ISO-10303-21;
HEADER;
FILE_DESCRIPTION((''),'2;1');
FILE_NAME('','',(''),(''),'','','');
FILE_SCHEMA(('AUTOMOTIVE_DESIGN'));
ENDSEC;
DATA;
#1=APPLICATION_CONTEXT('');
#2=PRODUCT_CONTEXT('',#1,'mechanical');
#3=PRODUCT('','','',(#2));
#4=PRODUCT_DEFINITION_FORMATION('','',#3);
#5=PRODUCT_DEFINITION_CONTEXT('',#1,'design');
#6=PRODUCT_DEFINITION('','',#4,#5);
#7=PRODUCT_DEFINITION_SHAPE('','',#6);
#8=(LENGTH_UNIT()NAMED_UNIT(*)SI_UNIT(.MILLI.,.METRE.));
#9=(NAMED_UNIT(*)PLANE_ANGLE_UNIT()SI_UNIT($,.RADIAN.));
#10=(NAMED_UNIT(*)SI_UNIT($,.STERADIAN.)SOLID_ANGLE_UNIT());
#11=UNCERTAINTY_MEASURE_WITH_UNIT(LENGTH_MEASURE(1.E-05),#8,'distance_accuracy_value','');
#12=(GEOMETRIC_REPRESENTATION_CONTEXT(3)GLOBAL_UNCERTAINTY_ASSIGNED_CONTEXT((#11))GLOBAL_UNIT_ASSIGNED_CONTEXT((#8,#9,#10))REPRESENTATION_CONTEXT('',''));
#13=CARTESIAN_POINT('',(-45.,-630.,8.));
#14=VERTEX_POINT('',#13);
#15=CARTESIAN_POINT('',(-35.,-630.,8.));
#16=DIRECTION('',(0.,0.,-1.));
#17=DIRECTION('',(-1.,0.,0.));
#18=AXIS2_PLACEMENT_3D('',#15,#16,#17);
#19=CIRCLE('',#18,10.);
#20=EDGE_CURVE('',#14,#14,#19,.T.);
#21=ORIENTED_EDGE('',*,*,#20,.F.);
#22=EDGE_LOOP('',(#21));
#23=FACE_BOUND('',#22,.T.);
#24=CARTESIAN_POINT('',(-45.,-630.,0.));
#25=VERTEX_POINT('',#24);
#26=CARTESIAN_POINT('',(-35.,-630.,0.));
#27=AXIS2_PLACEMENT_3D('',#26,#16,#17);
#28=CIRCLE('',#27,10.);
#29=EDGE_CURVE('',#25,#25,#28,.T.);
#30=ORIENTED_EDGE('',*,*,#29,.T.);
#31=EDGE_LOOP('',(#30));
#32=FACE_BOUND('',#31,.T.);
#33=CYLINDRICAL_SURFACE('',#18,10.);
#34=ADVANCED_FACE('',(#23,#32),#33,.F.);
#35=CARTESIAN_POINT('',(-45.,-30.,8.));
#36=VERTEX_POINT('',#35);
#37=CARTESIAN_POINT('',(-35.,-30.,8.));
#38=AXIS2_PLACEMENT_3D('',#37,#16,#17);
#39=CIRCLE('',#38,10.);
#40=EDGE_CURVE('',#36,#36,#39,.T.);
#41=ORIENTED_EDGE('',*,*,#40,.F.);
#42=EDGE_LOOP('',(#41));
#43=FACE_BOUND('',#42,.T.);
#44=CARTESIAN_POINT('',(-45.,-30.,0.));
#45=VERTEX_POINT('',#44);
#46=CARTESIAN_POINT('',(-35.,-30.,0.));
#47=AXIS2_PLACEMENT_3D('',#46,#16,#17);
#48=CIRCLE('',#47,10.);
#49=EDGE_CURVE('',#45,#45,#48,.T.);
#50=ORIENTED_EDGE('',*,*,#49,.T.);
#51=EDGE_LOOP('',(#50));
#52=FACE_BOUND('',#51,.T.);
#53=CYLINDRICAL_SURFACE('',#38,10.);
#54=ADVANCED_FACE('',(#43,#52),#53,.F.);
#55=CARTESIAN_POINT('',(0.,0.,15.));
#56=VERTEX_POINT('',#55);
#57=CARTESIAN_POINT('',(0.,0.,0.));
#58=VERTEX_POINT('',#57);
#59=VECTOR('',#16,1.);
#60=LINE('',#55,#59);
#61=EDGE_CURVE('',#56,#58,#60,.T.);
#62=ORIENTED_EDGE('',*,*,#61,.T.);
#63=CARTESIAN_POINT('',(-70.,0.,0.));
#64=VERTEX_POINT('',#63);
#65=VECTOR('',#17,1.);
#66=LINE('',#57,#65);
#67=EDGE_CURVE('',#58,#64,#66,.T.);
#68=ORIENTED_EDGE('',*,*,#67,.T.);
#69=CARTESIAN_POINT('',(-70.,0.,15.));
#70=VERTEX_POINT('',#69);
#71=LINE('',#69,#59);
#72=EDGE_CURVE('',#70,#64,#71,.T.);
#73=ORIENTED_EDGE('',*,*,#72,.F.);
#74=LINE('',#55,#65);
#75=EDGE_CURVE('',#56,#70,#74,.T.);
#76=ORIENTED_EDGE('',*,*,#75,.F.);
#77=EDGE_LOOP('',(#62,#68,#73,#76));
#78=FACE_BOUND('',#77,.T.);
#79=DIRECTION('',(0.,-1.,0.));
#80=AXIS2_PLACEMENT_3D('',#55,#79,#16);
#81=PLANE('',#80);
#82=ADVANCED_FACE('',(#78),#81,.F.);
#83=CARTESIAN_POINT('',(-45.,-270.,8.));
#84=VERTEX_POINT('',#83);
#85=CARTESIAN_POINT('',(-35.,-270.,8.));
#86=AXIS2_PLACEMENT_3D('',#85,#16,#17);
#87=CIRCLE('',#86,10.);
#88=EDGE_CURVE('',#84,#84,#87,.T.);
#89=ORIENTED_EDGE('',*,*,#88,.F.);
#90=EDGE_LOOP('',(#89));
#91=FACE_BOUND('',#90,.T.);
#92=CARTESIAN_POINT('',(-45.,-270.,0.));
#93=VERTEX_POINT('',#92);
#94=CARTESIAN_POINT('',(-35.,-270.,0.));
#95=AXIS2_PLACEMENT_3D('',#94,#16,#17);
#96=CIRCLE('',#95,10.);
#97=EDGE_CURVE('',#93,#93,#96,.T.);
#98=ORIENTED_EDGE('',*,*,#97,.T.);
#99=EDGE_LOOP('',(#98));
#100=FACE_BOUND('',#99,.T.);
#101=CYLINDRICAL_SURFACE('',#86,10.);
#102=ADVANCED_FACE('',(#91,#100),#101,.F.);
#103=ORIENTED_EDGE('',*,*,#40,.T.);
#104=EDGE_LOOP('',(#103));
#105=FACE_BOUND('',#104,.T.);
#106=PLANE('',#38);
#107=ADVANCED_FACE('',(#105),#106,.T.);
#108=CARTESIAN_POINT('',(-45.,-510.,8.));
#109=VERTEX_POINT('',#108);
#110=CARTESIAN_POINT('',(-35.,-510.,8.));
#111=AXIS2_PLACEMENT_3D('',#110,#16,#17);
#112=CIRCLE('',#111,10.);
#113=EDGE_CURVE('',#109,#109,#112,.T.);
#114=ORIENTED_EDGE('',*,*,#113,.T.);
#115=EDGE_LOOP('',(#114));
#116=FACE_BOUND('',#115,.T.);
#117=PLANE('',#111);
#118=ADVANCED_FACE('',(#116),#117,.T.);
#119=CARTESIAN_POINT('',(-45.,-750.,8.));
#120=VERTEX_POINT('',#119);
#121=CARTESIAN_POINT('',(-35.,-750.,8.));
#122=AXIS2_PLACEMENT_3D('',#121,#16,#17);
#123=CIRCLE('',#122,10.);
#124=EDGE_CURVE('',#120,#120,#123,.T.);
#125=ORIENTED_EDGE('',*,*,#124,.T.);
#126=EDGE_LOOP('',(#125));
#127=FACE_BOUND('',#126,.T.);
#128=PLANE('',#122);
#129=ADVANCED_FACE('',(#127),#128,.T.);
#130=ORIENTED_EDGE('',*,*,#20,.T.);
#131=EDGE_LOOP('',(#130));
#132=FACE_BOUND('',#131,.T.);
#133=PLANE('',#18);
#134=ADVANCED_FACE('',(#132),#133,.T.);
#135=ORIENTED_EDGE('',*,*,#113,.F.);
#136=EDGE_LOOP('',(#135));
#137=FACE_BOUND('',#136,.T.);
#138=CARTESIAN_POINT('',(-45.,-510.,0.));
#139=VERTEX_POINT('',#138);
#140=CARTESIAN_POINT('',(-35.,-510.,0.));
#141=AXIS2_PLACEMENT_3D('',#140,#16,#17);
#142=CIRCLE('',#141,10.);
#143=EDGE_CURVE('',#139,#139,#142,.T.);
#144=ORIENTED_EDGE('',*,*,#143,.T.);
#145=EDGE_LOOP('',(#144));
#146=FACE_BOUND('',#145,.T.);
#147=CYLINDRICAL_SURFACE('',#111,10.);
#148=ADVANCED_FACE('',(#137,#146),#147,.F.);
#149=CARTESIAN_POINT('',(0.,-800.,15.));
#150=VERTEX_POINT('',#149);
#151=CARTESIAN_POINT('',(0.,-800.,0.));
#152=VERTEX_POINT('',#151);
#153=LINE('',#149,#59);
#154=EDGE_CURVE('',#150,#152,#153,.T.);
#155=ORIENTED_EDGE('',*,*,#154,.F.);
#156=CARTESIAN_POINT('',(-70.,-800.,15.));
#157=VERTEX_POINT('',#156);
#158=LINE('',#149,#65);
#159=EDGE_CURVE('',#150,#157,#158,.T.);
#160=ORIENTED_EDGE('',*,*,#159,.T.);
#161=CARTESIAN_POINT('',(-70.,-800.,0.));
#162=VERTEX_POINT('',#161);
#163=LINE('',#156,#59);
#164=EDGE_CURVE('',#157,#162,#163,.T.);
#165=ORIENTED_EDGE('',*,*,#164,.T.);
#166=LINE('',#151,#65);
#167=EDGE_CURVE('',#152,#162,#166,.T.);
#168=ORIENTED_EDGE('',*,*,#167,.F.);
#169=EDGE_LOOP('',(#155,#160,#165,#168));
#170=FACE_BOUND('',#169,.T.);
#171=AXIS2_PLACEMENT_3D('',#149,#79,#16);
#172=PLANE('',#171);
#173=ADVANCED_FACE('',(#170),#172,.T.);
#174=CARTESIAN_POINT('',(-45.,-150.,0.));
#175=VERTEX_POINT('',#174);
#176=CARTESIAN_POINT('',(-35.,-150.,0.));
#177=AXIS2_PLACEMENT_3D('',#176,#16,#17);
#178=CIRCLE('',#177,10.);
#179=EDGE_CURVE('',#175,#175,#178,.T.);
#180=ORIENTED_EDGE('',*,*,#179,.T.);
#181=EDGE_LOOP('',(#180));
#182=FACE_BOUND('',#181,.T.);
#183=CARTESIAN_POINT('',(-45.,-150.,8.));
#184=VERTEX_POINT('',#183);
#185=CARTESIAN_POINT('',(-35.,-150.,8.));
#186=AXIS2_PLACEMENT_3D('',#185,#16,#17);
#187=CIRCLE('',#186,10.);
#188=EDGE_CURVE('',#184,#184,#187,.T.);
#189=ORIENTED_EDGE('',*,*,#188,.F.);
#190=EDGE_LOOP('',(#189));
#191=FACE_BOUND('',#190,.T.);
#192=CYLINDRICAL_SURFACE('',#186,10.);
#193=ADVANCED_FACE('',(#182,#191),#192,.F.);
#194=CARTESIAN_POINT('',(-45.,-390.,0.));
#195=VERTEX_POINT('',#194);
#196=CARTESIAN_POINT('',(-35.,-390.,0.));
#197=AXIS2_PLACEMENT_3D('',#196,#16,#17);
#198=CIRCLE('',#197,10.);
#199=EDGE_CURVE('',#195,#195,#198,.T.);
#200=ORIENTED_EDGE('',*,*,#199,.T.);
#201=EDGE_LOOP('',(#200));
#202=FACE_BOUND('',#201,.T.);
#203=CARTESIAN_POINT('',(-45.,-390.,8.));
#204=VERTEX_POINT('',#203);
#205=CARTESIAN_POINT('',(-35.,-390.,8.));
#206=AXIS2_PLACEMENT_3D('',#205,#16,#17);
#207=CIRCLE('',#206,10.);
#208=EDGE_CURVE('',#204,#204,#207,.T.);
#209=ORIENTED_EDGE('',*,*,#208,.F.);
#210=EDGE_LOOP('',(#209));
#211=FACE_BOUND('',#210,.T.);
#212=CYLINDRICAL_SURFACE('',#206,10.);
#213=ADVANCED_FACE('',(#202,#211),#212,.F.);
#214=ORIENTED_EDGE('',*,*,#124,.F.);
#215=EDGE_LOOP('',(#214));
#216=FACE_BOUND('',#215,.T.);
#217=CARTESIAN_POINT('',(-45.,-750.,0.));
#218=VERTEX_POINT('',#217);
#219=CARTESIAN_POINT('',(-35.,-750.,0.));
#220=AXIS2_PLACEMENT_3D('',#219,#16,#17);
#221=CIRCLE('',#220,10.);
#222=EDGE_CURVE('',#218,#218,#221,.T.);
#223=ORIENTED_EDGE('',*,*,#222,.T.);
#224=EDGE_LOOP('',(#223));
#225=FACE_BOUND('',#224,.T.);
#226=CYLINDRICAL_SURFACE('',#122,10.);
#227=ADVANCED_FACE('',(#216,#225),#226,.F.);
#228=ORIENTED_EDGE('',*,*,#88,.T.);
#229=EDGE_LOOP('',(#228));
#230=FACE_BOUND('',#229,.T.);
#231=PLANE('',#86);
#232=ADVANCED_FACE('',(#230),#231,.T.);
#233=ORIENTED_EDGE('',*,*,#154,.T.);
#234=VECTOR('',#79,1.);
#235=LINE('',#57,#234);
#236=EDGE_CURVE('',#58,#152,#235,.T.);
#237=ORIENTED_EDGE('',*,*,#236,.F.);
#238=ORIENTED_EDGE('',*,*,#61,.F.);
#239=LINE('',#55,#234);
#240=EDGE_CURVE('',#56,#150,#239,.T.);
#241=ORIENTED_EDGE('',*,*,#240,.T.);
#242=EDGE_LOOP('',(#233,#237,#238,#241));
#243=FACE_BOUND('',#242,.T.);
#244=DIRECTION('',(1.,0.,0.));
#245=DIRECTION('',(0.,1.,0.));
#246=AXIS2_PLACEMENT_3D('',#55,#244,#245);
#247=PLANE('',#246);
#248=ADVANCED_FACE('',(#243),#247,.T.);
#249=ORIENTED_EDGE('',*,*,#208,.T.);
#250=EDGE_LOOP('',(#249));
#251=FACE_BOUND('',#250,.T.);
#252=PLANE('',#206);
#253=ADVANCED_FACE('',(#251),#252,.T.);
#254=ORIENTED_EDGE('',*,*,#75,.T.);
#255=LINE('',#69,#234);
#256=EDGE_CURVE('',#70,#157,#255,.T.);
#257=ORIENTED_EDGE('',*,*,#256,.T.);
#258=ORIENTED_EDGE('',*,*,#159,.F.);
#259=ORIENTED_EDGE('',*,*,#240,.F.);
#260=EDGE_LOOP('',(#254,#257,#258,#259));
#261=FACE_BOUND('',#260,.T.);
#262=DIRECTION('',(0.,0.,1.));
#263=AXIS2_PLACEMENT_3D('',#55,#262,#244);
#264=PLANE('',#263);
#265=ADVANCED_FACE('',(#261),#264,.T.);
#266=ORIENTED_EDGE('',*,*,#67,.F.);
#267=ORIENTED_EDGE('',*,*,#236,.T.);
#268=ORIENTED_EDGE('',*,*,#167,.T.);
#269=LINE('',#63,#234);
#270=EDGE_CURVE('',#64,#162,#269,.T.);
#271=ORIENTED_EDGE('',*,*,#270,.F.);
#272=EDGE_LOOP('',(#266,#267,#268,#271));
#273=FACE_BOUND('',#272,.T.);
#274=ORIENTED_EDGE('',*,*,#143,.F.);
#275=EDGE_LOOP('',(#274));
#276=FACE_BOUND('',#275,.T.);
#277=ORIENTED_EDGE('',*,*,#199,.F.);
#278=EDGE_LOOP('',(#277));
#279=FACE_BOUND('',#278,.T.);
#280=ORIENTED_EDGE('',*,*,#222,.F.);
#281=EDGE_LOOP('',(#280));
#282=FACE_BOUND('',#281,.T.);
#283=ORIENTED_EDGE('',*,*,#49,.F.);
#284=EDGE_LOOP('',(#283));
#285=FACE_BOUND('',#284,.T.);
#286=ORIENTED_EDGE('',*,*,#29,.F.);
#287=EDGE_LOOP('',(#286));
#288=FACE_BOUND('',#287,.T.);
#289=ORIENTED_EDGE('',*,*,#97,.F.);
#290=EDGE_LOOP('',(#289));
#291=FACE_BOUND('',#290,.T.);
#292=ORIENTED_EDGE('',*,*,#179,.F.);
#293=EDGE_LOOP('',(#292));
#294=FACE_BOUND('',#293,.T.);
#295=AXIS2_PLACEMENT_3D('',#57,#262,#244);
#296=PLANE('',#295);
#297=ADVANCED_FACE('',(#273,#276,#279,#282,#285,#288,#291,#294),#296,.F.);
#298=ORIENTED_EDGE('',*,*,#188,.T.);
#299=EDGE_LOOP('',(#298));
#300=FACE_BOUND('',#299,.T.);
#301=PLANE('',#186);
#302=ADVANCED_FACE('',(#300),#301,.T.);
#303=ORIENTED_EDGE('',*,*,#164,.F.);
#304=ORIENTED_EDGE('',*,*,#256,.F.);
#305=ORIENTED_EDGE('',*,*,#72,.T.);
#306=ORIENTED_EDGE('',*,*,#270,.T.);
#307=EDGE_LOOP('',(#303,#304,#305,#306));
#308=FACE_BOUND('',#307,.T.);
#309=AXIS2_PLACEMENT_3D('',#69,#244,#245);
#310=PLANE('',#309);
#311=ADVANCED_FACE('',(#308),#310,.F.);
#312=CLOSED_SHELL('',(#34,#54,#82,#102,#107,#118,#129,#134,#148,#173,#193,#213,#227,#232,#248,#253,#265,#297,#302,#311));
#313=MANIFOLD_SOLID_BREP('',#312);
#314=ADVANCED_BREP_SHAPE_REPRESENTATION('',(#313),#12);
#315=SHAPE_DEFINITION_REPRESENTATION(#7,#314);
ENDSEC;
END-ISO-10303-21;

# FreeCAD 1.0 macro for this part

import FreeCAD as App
import Part
import Sketcher
from FreeCAD import Vector
Q = App.Units.Quantity


def add_polygon(sketch, points):
    """Adds a closed chain of lines whose ends are joined by coincident constraints."""
    first, n = sketch.GeometryCount, len(points)
    for a, b in zip(points, points[1:] + points[:1]):
        sketch.addGeometry(Part.LineSegment(App.Vector(*a, 0), App.Vector(*b, 0)), False)
    for i in range(n):
        sketch.addConstraint(Sketcher.Constraint("Coincident", first + i, 2, first + (i + 1) % n, 1))

doc = App.newDocument("Part")
body = doc.addObject("PartDesign::Body", "Body")

sketch1 = body.newObject("Sketcher::SketchObject", "Sketch")
sketch1.AttachmentSupport = (doc.getObject("XY_Plane"), [""])
sketch1.MapMode = "FlatFace"
add_polygon(sketch1, [(-70, 0), (-70, -800), (0, -800), (0, 0)])
sketch1.addConstraint([
    Sketcher.Constraint("Vertical", 0),
    Sketcher.Constraint("Horizontal", 1),
    Sketcher.Constraint("Vertical", 2),
    Sketcher.Constraint("Horizontal", 3),
    Sketcher.Constraint("Coincident", 2, 2, -1, 1),
    Sketcher.Constraint("DistanceX", 1, 1, 1, 2, Q("70 mm")),
    Sketcher.Constraint("DistanceY", 0, 2, 0, 1, Q("800 mm")),
])
pad1 = body.newObject("PartDesign::Pad", "Pad")
pad1.Profile = sketch1
pad1.Length = 15

sketch2 = body.newObject("Sketcher::SketchObject", "Sketch001")
sketch2.AttachmentSupport = (doc.getObject("XY_Plane"), [""])
sketch2.MapMode = "FlatFace"
sketch2.addGeometry([
    Part.Circle(Vector(-35, -30, 0), Vector(0, 0, 1), 10),
    Part.Circle(Vector(-35, -150, 0), Vector(0, 0, 1), 10),
    Part.Circle(Vector(-35, -270, 0), Vector(0, 0, 1), 10),
    Part.Circle(Vector(-35, -390, 0), Vector(0, 0, 1), 10),
    Part.Circle(Vector(-35, -510, 0), Vector(0, 0, 1), 10),
    Part.Circle(Vector(-35, -630, 0), Vector(0, 0, 1), 10),
    Part.Circle(Vector(-35, -750, 0), Vector(0, 0, 1), 10),
], False)
sketch2.addConstraint([
    Sketcher.Constraint("Equal", 0, 1),
    Sketcher.Constraint("Equal", 1, 2),
    Sketcher.Constraint("Equal", 2, 3),
    Sketcher.Constraint("Equal", 3, 4),
    Sketcher.Constraint("Equal", 4, 5),
    Sketcher.Constraint("Equal", 5, 6),
    Sketcher.Constraint("Vertical", 0, 3, 1, 3),
    Sketcher.Constraint("Vertical", 1, 3, 2, 3),
    Sketcher.Constraint("Vertical", 2, 3, 3, 3),
    Sketcher.Constraint("Vertical", 3, 3, 4, 3),
    Sketcher.Constraint("Vertical", 4, 3, 5, 3),
    Sketcher.Constraint("Vertical", 5, 3, 6, 3),
    Sketcher.Constraint("Diameter", 0, Q("20 mm")),
    Sketcher.Constraint("DistanceX", 0, 3, -1, 1, Q("35 mm")),
    Sketcher.Constraint("DistanceY", 0, 3, -1, 1, Q("30 mm")),
    Sketcher.Constraint("DistanceY", 1, 3, -1, 1, Q("150 mm")),
    Sketcher.Constraint("DistanceY", 2, 3, -1, 1, Q("270 mm")),
    Sketcher.Constraint("DistanceY", 3, 3, -1, 1, Q("390 mm")),
    Sketcher.Constraint("DistanceY", 4, 3, -1, 1, Q("510 mm")),
    Sketcher.Constraint("DistanceY", 5, 3, -1, 1, Q("630 mm")),
    Sketcher.Constraint("DistanceY", 6, 3, -1, 1, Q("750 mm")),
])
pocket1 = body.newObject("PartDesign::Pocket", "Pocket")
pocket1.Profile = sketch2
pocket1.Length = 8
pocket1.Reversed = True

doc.recompute()
